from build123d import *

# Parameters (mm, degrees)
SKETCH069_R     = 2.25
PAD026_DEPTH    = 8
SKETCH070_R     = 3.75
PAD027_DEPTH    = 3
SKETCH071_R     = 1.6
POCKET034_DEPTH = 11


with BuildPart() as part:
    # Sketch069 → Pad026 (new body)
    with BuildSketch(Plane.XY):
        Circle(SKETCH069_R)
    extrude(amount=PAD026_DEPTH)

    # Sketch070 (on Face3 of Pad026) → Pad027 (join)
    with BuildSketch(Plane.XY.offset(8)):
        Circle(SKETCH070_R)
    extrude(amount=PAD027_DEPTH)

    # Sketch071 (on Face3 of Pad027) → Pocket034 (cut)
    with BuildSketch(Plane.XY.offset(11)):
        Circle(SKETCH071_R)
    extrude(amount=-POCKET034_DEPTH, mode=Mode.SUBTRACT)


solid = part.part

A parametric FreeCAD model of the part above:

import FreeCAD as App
import Part
import Sketcher

doc = App.newDocument("Part")
body = doc.addObject("PartDesign::Body", "Body")

sketch1 = body.newObject("Sketcher::SketchObject", "Sketch")
sketch1.AttachmentSupport = (doc.getObject("XY_Plane"), [""])
sketch1.MapMode = "FlatFace"
sketch1.addGeometry(Part.Circle(App.Vector(0, 0, 0), App.Vector(0, 0, 1), 2.25), False)
sketch1.addConstraint([
    Sketcher.Constraint("Coincident", 0, 3, -1, 1),
    Sketcher.Constraint("Diameter", 0, 4.5),
])
pad1 = body.newObject("PartDesign::Pad", "Pad")
pad1.Profile = sketch1
pad1.Length = 8

sketch2 = body.newObject("Sketcher::SketchObject", "Sketch001")
sketch2.AttachmentSupport = (doc.getObject("XY_Plane"), [""])
sketch2.MapMode = "FlatFace"
sketch2.AttachmentOffset = App.Placement(App.Vector(0, 0, 8), App.Rotation())
sketch2.addGeometry(Part.Circle(App.Vector(0, 0, 0), App.Vector(0, 0, 1), 3.75), False)
sketch2.addConstraint([
    Sketcher.Constraint("Coincident", 0, 3, -1, 1),
    Sketcher.Constraint("Diameter", 0, 7.5),
])
pad2 = body.newObject("PartDesign::Pad", "Pad001")
pad2.Profile = sketch2
pad2.Length = 3

sketch3 = body.newObject("Sketcher::SketchObject", "Sketch002")
sketch3.AttachmentSupport = (doc.getObject("XY_Plane"), [""])
sketch3.MapMode = "FlatFace"
sketch3.AttachmentOffset = App.Placement(App.Vector(0, 0, 11), App.Rotation())
sketch3.addGeometry(Part.Circle(App.Vector(0, 0, 0), App.Vector(0, 0, 1), 1.6), False)
sketch3.addConstraint([
    Sketcher.Constraint("Coincident", 0, 3, -1, 1),
    Sketcher.Constraint("Diameter", 0, 3.2),
])
pocket1 = body.newObject("PartDesign::Pocket", "Pocket")
pocket1.Profile = sketch3
pocket1.Length = 11

doc.recompute()
